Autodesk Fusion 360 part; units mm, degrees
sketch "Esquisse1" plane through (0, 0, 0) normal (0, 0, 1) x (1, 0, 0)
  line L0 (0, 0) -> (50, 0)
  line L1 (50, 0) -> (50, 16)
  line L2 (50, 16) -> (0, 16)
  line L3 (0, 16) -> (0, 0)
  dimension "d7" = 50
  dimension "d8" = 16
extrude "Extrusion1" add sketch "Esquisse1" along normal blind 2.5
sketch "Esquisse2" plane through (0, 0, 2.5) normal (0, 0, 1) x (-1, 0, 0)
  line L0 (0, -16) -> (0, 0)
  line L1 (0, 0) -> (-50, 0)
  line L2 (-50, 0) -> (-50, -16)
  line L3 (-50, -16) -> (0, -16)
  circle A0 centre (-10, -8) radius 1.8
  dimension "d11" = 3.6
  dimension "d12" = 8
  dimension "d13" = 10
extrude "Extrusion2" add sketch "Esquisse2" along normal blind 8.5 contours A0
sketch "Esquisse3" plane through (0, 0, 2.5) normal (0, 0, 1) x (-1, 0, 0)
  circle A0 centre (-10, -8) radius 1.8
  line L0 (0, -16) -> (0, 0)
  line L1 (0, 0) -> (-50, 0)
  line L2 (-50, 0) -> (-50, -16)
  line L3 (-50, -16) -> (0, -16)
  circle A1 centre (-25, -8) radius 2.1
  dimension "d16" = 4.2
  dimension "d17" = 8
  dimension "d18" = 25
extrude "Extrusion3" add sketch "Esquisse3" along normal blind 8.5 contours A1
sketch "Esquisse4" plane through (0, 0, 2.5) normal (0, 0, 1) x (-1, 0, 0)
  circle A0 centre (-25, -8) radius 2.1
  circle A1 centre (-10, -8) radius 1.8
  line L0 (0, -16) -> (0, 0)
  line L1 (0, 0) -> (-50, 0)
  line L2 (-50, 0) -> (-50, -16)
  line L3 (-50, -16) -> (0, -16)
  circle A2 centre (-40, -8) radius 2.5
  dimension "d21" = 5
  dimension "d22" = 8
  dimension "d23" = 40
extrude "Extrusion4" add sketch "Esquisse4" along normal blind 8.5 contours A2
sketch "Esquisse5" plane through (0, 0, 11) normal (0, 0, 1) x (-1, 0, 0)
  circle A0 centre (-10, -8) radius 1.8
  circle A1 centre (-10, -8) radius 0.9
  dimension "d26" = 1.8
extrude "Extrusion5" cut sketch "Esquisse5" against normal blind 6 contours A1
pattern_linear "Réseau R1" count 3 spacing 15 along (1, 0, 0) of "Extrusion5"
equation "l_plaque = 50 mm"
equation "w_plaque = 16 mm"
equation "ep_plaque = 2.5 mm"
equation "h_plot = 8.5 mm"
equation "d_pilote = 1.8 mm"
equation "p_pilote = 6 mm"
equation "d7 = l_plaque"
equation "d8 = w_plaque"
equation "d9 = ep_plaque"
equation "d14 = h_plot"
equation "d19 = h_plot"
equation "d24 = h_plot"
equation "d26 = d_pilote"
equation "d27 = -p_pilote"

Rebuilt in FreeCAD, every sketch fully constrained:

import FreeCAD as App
import Part
import Sketcher
Q = App.Units.Quantity


def add_polygon(sketch, points):
    """Adds a closed chain of lines whose ends are joined by coincident constraints."""
    first, n = sketch.GeometryCount, len(points)
    for a, b in zip(points, points[1:] + points[:1]):
        sketch.addGeometry(Part.LineSegment(App.Vector(*a, 0), App.Vector(*b, 0)), False)
    for i in range(n):
        sketch.addConstraint(Sketcher.Constraint("Coincident", first + i, 2, first + (i + 1) % n, 1))

doc = App.newDocument("Part")
body = doc.addObject("PartDesign::Body", "Body")

# Sketch on XY plane
sketch1 = body.newObject("Sketcher::SketchObject", "Sketch")
sketch1.AttachmentSupport = (doc.getObject("XY_Plane"), [""])
sketch1.MapMode = "FlatFace"
add_polygon(sketch1, [(0, 16), (0, 0), (50, 0), (50, 16)])  # lines 0-3
sketch1.addConstraint(Sketcher.Constraint("Vertical", 0))
sketch1.addConstraint(Sketcher.Constraint("Horizontal", 1))
sketch1.addConstraint(Sketcher.Constraint("Vertical", 2))
sketch1.addConstraint(Sketcher.Constraint("Horizontal", 3))
sketch1.addConstraint(Sketcher.Constraint("Coincident", 0, 2, -1, 1))
sketch1.addConstraint(Sketcher.Constraint("DistanceX", 1, 1, 1, 2, Q("50 mm")))
sketch1.addConstraint(Sketcher.Constraint("DistanceY", 0, 2, 0, 1, Q("16 mm")))
pad1 = body.newObject("PartDesign::Pad", "Pad")
pad1.Profile = sketch1
pad1.Length = 2.5

# Sketch on XY plane
sketch2 = body.newObject("Sketcher::SketchObject", "Sketch001")
sketch2.AttachmentSupport = (doc.getObject("XY_Plane"), [""])
sketch2.MapMode = "FlatFace"
sketch2.AttachmentOffset = App.Placement(App.Vector(0, 0, 2.5), App.Rotation())
sketch2.addGeometry(Part.Circle(App.Vector(10, 8, 0), App.Vector(0, 0, 1), 1.8), False)
sketch2.addConstraint(Sketcher.Constraint("Diameter", 0, Q("3.6 mm")))
sketch2.addConstraint(Sketcher.Constraint("DistanceX", -1, 1, 0, 3, Q("10 mm")))
sketch2.addConstraint(Sketcher.Constraint("DistanceY", -1, 1, 0, 3, Q("8 mm")))
pad2 = body.newObject("PartDesign::Pad", "Pad001")
pad2.Profile = sketch2
pad2.Length = 8.5

# Sketch on XY plane
sketch3 = body.newObject("Sketcher::SketchObject", "Sketch002")
sketch3.AttachmentSupport = (doc.getObject("XY_Plane"), [""])
sketch3.MapMode = "FlatFace"
sketch3.AttachmentOffset = App.Placement(App.Vector(0, 0, 2.5), App.Rotation())
sketch3.addGeometry(Part.Circle(App.Vector(25, 8, 0), App.Vector(0, 0, 1), 2.1), False)
sketch3.addConstraint(Sketcher.Constraint("Diameter", 0, Q("4.2 mm")))
sketch3.addConstraint(Sketcher.Constraint("DistanceX", -1, 1, 0, 3, Q("25 mm")))
sketch3.addConstraint(Sketcher.Constraint("DistanceY", -1, 1, 0, 3, Q("8 mm")))
pad3 = body.newObject("PartDesign::Pad", "Pad002")
pad3.Profile = sketch3
pad3.Length = 8.5

# Sketch on XY plane
sketch4 = body.newObject("Sketcher::SketchObject", "Sketch003")
sketch4.AttachmentSupport = (doc.getObject("XY_Plane"), [""])
sketch4.MapMode = "FlatFace"
sketch4.AttachmentOffset = App.Placement(App.Vector(0, 0, 2.5), App.Rotation())
sketch4.addGeometry(Part.Circle(App.Vector(40, 8, 0), App.Vector(0, 0, 1), 2.5), False)
sketch4.addConstraint(Sketcher.Constraint("Diameter", 0, Q("5 mm")))
sketch4.addConstraint(Sketcher.Constraint("DistanceX", -1, 1, 0, 3, Q("40 mm")))
sketch4.addConstraint(Sketcher.Constraint("DistanceY", -1, 1, 0, 3, Q("8 mm")))
pad4 = body.newObject("PartDesign::Pad", "Pad003")
pad4.Profile = sketch4
pad4.Length = 8.5

# Sketch on XY plane
sketch5 = body.newObject("Sketcher::SketchObject", "Sketch004")
sketch5.AttachmentSupport = (doc.getObject("XY_Plane"), [""])
sketch5.MapMode = "FlatFace"
sketch5.AttachmentOffset = App.Placement(App.Vector(0, 0, 11), App.Rotation())
sketch5.addGeometry(Part.Circle(App.Vector(10, 8, 0), App.Vector(0, 0, 1), 0.9), False)
sketch5.addConstraint(Sketcher.Constraint("Diameter", 0, Q("1.8 mm")))
sketch5.addConstraint(Sketcher.Constraint("DistanceX", -1, 1, 0, 3, Q("10 mm")))
sketch5.addConstraint(Sketcher.Constraint("DistanceY", -1, 1, 0, 3, Q("8 mm")))
pocket1 = body.newObject("PartDesign::Pocket", "Pocket")
pocket1.Profile = sketch5
pocket1.Length = 6
doc.recompute()

linearpattern = body.newObject("PartDesign::LinearPattern", "LinearPattern")
linearpattern.Originals = [pocket1]
linearpattern.Direction = (doc.getObject("X_Axis"), [""])
linearpattern.Mode = "offset"
linearpattern.Offset = 15
linearpattern.Occurrences = 3
body.Tip = linearpattern

doc.recompute()
